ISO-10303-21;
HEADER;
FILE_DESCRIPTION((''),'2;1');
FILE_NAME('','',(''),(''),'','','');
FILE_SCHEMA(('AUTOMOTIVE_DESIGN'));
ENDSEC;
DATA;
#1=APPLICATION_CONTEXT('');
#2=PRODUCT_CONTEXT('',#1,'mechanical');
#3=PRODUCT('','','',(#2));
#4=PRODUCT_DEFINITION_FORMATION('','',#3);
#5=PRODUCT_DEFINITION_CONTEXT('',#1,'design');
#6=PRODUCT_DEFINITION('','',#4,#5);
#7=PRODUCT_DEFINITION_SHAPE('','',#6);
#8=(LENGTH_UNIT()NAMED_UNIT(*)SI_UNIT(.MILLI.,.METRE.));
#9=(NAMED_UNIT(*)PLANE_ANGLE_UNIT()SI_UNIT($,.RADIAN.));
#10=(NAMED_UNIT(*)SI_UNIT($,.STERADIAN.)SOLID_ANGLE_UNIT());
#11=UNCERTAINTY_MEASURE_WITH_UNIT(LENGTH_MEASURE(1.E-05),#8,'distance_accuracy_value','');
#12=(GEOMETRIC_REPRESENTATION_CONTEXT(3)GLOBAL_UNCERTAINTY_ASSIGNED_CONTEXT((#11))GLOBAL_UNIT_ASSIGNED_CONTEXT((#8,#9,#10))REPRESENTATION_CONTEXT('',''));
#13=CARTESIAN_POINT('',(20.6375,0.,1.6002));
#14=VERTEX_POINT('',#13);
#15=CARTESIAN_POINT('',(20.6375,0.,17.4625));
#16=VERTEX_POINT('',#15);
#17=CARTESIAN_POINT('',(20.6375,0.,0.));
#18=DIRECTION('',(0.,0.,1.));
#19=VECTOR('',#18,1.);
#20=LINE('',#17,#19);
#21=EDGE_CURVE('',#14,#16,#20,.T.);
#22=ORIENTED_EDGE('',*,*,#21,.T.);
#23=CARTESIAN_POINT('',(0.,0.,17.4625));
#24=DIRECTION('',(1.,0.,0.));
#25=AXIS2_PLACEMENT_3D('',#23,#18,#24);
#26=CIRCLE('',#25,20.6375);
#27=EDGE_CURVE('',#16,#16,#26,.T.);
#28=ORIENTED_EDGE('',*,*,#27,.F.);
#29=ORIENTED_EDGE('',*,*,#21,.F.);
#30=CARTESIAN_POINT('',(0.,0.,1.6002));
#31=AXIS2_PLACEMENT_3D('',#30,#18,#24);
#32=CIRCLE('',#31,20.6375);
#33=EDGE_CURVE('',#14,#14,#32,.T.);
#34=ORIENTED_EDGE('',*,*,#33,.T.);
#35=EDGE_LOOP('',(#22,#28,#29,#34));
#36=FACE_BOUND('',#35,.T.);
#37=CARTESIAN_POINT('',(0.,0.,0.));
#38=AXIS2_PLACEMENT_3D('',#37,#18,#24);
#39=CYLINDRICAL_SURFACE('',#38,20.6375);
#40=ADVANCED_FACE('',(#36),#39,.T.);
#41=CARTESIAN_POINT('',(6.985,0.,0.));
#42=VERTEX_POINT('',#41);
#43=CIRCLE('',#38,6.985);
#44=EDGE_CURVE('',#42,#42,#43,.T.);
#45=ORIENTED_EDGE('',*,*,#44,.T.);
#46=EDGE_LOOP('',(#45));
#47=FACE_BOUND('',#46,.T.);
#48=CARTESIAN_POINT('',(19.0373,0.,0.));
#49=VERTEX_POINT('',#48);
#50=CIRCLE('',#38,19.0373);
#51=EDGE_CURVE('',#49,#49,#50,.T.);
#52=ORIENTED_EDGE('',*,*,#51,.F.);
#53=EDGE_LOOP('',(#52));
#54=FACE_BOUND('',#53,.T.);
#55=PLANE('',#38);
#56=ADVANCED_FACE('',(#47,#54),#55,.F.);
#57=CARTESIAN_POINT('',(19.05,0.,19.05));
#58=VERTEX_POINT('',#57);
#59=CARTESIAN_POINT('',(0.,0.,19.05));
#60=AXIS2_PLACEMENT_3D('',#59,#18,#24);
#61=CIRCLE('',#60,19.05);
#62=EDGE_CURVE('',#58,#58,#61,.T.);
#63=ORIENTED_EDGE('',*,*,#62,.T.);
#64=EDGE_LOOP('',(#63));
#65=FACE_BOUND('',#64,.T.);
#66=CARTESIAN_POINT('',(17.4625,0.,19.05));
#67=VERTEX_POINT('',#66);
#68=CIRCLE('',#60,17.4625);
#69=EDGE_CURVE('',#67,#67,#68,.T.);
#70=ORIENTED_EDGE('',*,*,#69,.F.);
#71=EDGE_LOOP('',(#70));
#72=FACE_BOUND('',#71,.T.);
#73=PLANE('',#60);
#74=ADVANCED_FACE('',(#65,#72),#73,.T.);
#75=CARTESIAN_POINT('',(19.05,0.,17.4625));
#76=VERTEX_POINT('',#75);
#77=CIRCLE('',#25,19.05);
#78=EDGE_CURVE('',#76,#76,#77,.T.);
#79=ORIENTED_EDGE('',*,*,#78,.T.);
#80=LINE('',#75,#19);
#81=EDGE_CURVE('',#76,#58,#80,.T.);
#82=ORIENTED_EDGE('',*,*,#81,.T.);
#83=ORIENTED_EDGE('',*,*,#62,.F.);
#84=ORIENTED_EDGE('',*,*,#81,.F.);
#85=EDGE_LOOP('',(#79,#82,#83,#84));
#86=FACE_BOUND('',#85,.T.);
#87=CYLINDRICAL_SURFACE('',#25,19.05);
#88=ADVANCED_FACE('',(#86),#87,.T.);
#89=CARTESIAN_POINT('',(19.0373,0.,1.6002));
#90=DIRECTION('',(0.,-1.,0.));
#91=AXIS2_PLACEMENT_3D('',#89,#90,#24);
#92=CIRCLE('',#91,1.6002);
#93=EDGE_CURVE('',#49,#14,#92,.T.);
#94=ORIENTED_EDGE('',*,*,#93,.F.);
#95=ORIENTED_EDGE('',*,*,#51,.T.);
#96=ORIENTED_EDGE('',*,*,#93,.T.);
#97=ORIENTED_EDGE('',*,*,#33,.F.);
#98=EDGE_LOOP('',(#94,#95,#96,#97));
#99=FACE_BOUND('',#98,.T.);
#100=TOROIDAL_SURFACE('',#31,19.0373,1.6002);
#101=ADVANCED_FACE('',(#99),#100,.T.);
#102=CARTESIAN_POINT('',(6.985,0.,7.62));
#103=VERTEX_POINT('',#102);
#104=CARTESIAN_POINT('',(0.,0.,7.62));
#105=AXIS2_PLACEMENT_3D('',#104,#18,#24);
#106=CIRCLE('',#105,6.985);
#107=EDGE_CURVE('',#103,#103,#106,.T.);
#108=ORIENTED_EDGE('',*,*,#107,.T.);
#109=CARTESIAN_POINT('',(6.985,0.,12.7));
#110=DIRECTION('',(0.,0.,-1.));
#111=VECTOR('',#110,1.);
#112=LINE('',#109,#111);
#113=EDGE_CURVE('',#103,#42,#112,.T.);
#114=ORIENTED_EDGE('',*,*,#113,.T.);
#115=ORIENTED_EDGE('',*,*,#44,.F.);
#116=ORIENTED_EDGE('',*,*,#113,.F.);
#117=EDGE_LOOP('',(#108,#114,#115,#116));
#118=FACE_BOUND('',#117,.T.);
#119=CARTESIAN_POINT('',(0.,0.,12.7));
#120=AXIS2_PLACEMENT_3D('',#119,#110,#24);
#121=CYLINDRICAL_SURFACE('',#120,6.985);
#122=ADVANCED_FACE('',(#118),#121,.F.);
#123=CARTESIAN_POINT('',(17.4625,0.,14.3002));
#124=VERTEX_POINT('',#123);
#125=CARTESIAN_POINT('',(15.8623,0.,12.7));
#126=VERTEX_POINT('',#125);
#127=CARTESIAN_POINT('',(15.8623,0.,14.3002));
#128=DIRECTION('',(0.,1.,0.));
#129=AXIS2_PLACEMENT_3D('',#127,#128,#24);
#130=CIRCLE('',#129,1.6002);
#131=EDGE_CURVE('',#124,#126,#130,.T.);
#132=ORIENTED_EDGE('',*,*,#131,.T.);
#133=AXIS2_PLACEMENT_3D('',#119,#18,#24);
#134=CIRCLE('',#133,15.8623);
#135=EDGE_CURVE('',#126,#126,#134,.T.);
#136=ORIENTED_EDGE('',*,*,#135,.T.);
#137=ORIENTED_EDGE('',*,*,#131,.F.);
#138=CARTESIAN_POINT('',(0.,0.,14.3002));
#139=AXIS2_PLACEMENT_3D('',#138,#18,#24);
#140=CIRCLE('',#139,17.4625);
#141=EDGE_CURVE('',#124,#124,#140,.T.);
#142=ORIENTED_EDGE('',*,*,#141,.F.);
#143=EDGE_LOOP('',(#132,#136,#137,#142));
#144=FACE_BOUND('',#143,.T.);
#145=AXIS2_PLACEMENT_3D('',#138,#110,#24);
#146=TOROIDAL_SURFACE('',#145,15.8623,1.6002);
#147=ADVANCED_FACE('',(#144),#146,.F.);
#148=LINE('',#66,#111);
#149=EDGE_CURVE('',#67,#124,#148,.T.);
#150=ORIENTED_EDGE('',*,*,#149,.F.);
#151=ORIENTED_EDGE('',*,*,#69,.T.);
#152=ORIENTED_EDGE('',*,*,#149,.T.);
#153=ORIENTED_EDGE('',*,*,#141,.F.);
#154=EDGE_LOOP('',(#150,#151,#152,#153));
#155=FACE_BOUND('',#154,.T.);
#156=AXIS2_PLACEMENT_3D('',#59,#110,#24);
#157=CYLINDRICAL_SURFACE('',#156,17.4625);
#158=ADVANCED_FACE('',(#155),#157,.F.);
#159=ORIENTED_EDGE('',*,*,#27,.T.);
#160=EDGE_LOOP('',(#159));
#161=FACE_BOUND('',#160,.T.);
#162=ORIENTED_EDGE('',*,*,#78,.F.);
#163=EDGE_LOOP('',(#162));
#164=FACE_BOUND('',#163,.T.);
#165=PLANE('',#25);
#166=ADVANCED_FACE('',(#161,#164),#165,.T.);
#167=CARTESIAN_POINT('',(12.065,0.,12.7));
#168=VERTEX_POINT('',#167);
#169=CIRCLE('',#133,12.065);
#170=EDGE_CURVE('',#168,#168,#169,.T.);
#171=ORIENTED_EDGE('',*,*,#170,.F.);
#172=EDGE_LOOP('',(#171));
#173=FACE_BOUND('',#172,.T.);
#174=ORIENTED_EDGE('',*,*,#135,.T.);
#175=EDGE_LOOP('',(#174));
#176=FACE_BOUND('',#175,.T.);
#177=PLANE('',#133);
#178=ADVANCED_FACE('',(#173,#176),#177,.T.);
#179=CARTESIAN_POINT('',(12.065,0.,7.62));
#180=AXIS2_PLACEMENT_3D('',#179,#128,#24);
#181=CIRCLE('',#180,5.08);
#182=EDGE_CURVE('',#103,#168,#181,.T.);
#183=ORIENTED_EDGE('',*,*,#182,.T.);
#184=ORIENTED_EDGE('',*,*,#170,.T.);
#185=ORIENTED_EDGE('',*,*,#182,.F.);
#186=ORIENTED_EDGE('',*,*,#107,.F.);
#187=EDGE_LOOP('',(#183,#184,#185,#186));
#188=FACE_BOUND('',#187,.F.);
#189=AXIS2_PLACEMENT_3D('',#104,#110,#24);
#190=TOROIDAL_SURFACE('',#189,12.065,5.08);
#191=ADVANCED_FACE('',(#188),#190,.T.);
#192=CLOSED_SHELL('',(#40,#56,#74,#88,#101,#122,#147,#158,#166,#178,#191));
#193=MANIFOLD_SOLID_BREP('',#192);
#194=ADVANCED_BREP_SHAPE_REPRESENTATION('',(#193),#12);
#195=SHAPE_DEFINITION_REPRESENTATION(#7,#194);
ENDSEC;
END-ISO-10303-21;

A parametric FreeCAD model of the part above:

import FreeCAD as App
import Part
import Sketcher

V = App.Vector
Q = App.Units.Quantity


def edges_at(feature, points):
    """Names of the edges that pass closest to the given points."""
    edges = feature.Shape.Edges
    near = lambda p: min(range(len(edges)), key=lambda i: edges[i].distToShape(Part.Vertex(*p))[0])
    return sorted({f"Edge{near(p) + 1}" for p in points})

doc = App.newDocument("Part")
body = doc.addObject("PartDesign::Body", "Body")

sketch1 = body.newObject("Sketcher::SketchObject", "Sketch")
sketch1.AttachmentSupport = (doc.getObject("XZ_Plane"), [""])
sketch1.MapMode = "FlatFace"
sketch1.addGeometry([
    Part.LineSegment(V(7, 12.7, 0), V(7, 0, 0)),
    Part.LineSegment(V(7, 0, 0), V(20.6, 0, 0)),
    Part.LineSegment(V(20.6, 0, 0), V(20.6, 17.5, 0)),
    Part.LineSegment(V(20.6, 17.5, 0), V(19.1, 17.5, 0)),
    Part.LineSegment(V(19.1, 17.5, 0), V(19.1, 19.1, 0)),
    Part.LineSegment(V(19.1, 19.1, 0), V(17.5, 19.1, 0)),
    Part.LineSegment(V(17.5, 19.1, 0), V(17.5, 12.7, 0)),
    Part.LineSegment(V(17.5, 12.7, 0), V(7, 12.7, 0)),
], False)
sketch1.addConstraint([
    Sketcher.Constraint("Coincident", 0, 2, 1, 1),
    Sketcher.Constraint("Coincident", 1, 2, 2, 1),
    Sketcher.Constraint("Coincident", 2, 2, 3, 1),
    Sketcher.Constraint("Coincident", 3, 2, 4, 1),
    Sketcher.Constraint("Coincident", 4, 2, 5, 1),
    Sketcher.Constraint("Coincident", 5, 2, 6, 1),
    Sketcher.Constraint("Coincident", 6, 2, 7, 1),
    Sketcher.Constraint("Coincident", 7, 2, 0, 1),
    Sketcher.Constraint("Vertical", 0),
    Sketcher.Constraint("Horizontal", 1),
    Sketcher.Constraint("Vertical", 2),
    Sketcher.Constraint("Horizontal", 3),
    Sketcher.Constraint("Vertical", 4),
    Sketcher.Constraint("Horizontal", 5),
    Sketcher.Constraint("Vertical", 6),
    Sketcher.Constraint("Horizontal", 7),
    Sketcher.Constraint("PointOnObject", 0, 2, -1),
    Sketcher.Constraint("Equal", 3, 5),
    Sketcher.Constraint("Equal", 5, 4),
    Sketcher.Constraint("DistanceY", 0, 2, 0, 1, Q("0.5 in")),
    Sketcher.Constraint("DistanceY", 6, 2, 6, 1, Q("0.25 in")),
    Sketcher.Constraint("DistanceX", 3, 2, 3, 1, Q("0.0625 in")),
    Sketcher.Constraint("DistanceX", -1, 1, 3, 2, Q("0.75 in")),
    Sketcher.Constraint("DistanceX", 1, 1, 1, 2, Q("0.5375 in")),
])
revolution = body.newObject("PartDesign::Revolution", "Revolution")
revolution.Profile = sketch1
revolution.ReferenceAxis = (sketch1, ["V_Axis"])
revolution.Angle = 360
doc.recompute()

fillet = body.newObject("PartDesign::Fillet", "Fillet")
fillet.Base = (revolution, edges_at(revolution, [(-17.462, 0, 12.7), (-20.637, 0, 0)]))
fillet.Radius = Q("0.063 in")
doc.recompute()

fillet2 = body.newObject("PartDesign::Fillet", "Fillet001")
fillet2.Base = (fillet, edges_at(fillet, [(-6.985, 0, 12.7)]))
fillet2.Radius = Q("0.2 in")

doc.recompute()
